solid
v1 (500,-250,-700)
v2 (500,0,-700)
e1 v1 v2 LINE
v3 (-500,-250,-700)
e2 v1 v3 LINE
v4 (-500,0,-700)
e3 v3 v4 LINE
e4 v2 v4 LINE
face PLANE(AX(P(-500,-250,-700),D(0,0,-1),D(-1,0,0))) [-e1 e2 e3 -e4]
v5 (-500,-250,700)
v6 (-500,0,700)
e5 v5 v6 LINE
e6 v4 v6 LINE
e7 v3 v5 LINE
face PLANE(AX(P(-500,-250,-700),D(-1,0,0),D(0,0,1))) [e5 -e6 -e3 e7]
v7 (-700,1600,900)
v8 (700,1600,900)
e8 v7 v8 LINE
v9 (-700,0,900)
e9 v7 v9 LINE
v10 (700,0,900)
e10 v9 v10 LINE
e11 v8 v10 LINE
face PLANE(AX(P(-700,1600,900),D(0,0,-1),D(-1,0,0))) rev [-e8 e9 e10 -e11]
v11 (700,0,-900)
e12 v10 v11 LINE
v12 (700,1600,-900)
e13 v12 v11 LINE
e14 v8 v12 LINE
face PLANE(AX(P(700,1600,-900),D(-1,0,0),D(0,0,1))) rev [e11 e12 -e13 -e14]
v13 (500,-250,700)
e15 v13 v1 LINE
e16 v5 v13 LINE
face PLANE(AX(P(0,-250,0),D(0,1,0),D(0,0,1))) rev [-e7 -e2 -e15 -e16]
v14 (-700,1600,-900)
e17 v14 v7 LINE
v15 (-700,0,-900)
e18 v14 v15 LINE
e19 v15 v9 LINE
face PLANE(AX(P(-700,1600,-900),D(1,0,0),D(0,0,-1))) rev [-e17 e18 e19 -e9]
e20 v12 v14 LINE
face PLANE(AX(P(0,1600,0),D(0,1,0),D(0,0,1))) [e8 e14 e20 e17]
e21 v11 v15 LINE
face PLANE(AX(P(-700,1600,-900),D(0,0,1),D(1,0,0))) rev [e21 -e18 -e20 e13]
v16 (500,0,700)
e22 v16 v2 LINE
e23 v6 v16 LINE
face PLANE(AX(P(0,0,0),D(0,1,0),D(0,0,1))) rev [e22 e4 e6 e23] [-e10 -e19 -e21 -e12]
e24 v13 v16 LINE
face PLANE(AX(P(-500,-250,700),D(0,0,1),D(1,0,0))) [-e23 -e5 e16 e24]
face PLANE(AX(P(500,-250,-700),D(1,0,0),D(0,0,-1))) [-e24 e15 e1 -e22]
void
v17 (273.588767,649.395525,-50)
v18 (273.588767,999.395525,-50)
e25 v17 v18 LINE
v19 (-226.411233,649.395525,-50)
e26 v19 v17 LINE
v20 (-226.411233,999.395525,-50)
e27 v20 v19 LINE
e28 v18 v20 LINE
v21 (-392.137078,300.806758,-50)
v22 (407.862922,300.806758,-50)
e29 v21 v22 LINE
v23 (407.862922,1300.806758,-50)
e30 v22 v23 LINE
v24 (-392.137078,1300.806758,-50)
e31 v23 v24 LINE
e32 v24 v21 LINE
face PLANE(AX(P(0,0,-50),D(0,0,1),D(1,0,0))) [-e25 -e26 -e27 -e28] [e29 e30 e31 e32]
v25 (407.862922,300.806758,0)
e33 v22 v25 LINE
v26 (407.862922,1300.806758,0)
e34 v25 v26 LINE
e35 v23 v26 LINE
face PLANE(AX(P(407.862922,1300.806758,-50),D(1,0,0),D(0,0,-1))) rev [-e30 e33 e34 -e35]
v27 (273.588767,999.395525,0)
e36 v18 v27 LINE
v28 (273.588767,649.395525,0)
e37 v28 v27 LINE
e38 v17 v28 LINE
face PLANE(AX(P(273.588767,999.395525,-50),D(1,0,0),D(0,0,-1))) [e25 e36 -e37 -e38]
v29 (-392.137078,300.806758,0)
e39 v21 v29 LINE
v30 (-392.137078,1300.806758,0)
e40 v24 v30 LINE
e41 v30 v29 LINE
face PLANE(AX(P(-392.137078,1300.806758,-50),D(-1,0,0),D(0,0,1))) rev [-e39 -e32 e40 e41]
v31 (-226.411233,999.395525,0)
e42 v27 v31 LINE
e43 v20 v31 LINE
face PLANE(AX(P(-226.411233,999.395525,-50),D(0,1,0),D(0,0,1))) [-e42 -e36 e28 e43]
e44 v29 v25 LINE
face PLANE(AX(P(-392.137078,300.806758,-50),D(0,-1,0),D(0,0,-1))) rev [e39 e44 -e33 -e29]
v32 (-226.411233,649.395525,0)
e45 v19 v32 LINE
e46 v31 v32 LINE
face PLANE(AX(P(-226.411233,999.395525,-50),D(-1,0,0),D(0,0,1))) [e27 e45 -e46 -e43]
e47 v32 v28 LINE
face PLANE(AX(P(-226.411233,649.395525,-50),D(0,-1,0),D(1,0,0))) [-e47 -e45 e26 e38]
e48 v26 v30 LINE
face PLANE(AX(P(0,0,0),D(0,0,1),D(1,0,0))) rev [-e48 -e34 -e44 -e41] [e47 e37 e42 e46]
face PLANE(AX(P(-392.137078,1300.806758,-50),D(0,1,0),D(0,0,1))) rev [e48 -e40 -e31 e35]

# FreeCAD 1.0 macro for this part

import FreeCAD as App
import Part
import Sketcher
from FreeCAD import Vector

doc = App.newDocument("Part")
body = doc.addObject("PartDesign::Body", "Body")

# Sketch on XZ plane
sketch1 = body.newObject("Sketcher::SketchObject", "Sketch")
sketch1.AttachmentSupport = (doc.getObject("XZ_Plane"), [""])
sketch1.MapMode = "FlatFace"
sketch1.addGeometry(Part.LineSegment(Vector(-700, -900, 0), Vector(-700, 900, 0)), False)
sketch1.addGeometry(Part.LineSegment(Vector(-700, 900, 0), Vector(700, 900, 0)), False)
sketch1.addGeometry(Part.LineSegment(Vector(700, 900, 0), Vector(700, -900, 0)), False)
sketch1.addGeometry(Part.LineSegment(Vector(700, -900, 0), Vector(-700, -900, 0)), False)
sketch1.addConstraint(Sketcher.Constraint("Coincident", 0, 2, 1, 1))
sketch1.addConstraint(Sketcher.Constraint("Coincident", 1, 2, 2, 1))
sketch1.addConstraint(Sketcher.Constraint("Coincident", 2, 2, 3, 1))
sketch1.addConstraint(Sketcher.Constraint("Coincident", 3, 2, 0, 1))
sketch1.addConstraint(Sketcher.Constraint("Vertical", 0))
sketch1.addConstraint(Sketcher.Constraint("Horizontal", 1))
sketch1.addConstraint(Sketcher.Constraint("Vertical", 2))
sketch1.addConstraint(Sketcher.Constraint("Horizontal", 3))
sketch1.addConstraint(Sketcher.Constraint("Symmetric", 0, 2, 2, 2, -1, 1))
sketch1.addConstraint(Sketcher.Constraint("DistanceX", 1, 1, 1, 2, 1400.0))
sketch1.addConstraint(Sketcher.Constraint("DistanceY", 0, 1, 0, 2, 1800.0))
pad1 = body.newObject("PartDesign::Pad", "Pad")
pad1.Profile = sketch1
pad1.Length = 1600
pad1.Reversed = True

# Sketch on XZ plane
sketch2 = body.newObject("Sketcher::SketchObject", "Sketch001")
sketch2.AttachmentSupport = (doc.getObject("XZ_Plane"), [""])
sketch2.MapMode = "FlatFace"
sketch2.addGeometry(Part.LineSegment(Vector(-500, -700, 0), Vector(-500, 700, 0)), False)
sketch2.addGeometry(Part.LineSegment(Vector(-500, 700, 0), Vector(500, 700, 0)), False)
sketch2.addGeometry(Part.LineSegment(Vector(500, 700, 0), Vector(500, -700, 0)), False)
sketch2.addGeometry(Part.LineSegment(Vector(500, -700, 0), Vector(-500, -700, 0)), False)
sketch2.addConstraint(Sketcher.Constraint("Coincident", 0, 2, 1, 1))
sketch2.addConstraint(Sketcher.Constraint("Coincident", 1, 2, 2, 1))
sketch2.addConstraint(Sketcher.Constraint("Coincident", 2, 2, 3, 1))
sketch2.addConstraint(Sketcher.Constraint("Coincident", 3, 2, 0, 1))
sketch2.addConstraint(Sketcher.Constraint("Vertical", 0))
sketch2.addConstraint(Sketcher.Constraint("Horizontal", 1))
sketch2.addConstraint(Sketcher.Constraint("Vertical", 2))
sketch2.addConstraint(Sketcher.Constraint("Horizontal", 3))
sketch2.addConstraint(Sketcher.Constraint("Symmetric", 0, 2, 2, 2, -1, 1))
sketch2.addConstraint(Sketcher.Constraint("DistanceX", 1, 1, 1, 2, 1000.0))
sketch2.addConstraint(Sketcher.Constraint("DistanceY", 0, 1, 0, 2, 1400.0))
pad2 = body.newObject("PartDesign::Pad", "Pad001")
pad2.Profile = sketch2
pad2.Length = 250

# Sketch on XY plane
sketch3 = body.newObject("Sketcher::SketchObject", "Sketch002")
sketch3.AttachmentSupport = (doc.getObject("XY_Plane"), [""])
sketch3.MapMode = "FlatFace"
sketch3.addGeometry(Part.LineSegment(Vector(-392.137078, 1300.806758, 0), Vector(-392.137078, 300.806758, 0)), False)
sketch3.addGeometry(Part.LineSegment(Vector(-392.137078, 300.806758, 0), Vector(407.862922, 300.806758, 0)), False)
sketch3.addGeometry(Part.LineSegment(Vector(407.862922, 300.806758, 0), Vector(407.862922, 1300.806758, 0)), False)
sketch3.addGeometry(Part.LineSegment(Vector(407.862922, 1300.806758, 0), Vector(-392.137078, 1300.806758, 0)), False)
sketch3.addConstraint(Sketcher.Constraint("Coincident", 0, 2, 1, 1))
sketch3.addConstraint(Sketcher.Constraint("Coincident", 1, 2, 2, 1))
sketch3.addConstraint(Sketcher.Constraint("Coincident", 2, 2, 3, 1))
sketch3.addConstraint(Sketcher.Constraint("Coincident", 3, 2, 0, 1))
sketch3.addConstraint(Sketcher.Constraint("Vertical", 0))
sketch3.addConstraint(Sketcher.Constraint("Horizontal", 1))
sketch3.addConstraint(Sketcher.Constraint("Vertical", 2))
sketch3.addConstraint(Sketcher.Constraint("Horizontal", 3))
sketch3.addConstraint(Sketcher.Constraint("DistanceX", 1, 1, 1, 2, 800.0))
sketch3.addConstraint(Sketcher.Constraint("DistanceY", 0, 2, 0, 1, 1000.0))
sketch3.addConstraint(Sketcher.Constraint("DistanceX", 0, 2, -1, 1, 392.137078))
sketch3.addConstraint(Sketcher.Constraint("DistanceY", -1, 1, 0, 2, 300.806758))
pocket1 = body.newObject("PartDesign::Pocket", "Pocket")
pocket1.Profile = sketch3
pocket1.Length = 50

# Sketch on XY plane
sketch4 = body.newObject("Sketcher::SketchObject", "Sketch003")
sketch4.AttachmentSupport = (doc.getObject("XY_Plane"), [""])
sketch4.MapMode = "FlatFace"
sketch4.addGeometry(Part.LineSegment(Vector(-226.411233, 999.395525, 0), Vector(-226.411233, 649.395525, 0)), False)
sketch4.addGeometry(Part.LineSegment(Vector(-226.411233, 649.395525, 0), Vector(273.588767, 649.395525, 0)), False)
sketch4.addGeometry(Part.LineSegment(Vector(273.588767, 649.395525, 0), Vector(273.588767, 999.395525, 0)), False)
sketch4.addGeometry(Part.LineSegment(Vector(273.588767, 999.395525, 0), Vector(-226.411233, 999.395525, 0)), False)
sketch4.addConstraint(Sketcher.Constraint("Coincident", 0, 2, 1, 1))
sketch4.addConstraint(Sketcher.Constraint("Coincident", 1, 2, 2, 1))
sketch4.addConstraint(Sketcher.Constraint("Coincident", 2, 2, 3, 1))
sketch4.addConstraint(Sketcher.Constraint("Coincident", 3, 2, 0, 1))
sketch4.addConstraint(Sketcher.Constraint("Vertical", 0))
sketch4.addConstraint(Sketcher.Constraint("Horizontal", 1))
sketch4.addConstraint(Sketcher.Constraint("Vertical", 2))
sketch4.addConstraint(Sketcher.Constraint("Horizontal", 3))
sketch4.addConstraint(Sketcher.Constraint("DistanceX", 1, 1, 1, 2, 500.0))
sketch4.addConstraint(Sketcher.Constraint("DistanceY", 0, 2, 0, 1, 350.0))
sketch4.addConstraint(Sketcher.Constraint("DistanceX", 0, 2, -1, 1, 226.411233))
sketch4.addConstraint(Sketcher.Constraint("DistanceY", -1, 1, 0, 2, 649.395525))
pad3 = body.newObject("PartDesign::Pad", "Pad002")
pad3.Profile = sketch4
pad3.Length = 50
pad3.Reversed = True

doc.recompute()
